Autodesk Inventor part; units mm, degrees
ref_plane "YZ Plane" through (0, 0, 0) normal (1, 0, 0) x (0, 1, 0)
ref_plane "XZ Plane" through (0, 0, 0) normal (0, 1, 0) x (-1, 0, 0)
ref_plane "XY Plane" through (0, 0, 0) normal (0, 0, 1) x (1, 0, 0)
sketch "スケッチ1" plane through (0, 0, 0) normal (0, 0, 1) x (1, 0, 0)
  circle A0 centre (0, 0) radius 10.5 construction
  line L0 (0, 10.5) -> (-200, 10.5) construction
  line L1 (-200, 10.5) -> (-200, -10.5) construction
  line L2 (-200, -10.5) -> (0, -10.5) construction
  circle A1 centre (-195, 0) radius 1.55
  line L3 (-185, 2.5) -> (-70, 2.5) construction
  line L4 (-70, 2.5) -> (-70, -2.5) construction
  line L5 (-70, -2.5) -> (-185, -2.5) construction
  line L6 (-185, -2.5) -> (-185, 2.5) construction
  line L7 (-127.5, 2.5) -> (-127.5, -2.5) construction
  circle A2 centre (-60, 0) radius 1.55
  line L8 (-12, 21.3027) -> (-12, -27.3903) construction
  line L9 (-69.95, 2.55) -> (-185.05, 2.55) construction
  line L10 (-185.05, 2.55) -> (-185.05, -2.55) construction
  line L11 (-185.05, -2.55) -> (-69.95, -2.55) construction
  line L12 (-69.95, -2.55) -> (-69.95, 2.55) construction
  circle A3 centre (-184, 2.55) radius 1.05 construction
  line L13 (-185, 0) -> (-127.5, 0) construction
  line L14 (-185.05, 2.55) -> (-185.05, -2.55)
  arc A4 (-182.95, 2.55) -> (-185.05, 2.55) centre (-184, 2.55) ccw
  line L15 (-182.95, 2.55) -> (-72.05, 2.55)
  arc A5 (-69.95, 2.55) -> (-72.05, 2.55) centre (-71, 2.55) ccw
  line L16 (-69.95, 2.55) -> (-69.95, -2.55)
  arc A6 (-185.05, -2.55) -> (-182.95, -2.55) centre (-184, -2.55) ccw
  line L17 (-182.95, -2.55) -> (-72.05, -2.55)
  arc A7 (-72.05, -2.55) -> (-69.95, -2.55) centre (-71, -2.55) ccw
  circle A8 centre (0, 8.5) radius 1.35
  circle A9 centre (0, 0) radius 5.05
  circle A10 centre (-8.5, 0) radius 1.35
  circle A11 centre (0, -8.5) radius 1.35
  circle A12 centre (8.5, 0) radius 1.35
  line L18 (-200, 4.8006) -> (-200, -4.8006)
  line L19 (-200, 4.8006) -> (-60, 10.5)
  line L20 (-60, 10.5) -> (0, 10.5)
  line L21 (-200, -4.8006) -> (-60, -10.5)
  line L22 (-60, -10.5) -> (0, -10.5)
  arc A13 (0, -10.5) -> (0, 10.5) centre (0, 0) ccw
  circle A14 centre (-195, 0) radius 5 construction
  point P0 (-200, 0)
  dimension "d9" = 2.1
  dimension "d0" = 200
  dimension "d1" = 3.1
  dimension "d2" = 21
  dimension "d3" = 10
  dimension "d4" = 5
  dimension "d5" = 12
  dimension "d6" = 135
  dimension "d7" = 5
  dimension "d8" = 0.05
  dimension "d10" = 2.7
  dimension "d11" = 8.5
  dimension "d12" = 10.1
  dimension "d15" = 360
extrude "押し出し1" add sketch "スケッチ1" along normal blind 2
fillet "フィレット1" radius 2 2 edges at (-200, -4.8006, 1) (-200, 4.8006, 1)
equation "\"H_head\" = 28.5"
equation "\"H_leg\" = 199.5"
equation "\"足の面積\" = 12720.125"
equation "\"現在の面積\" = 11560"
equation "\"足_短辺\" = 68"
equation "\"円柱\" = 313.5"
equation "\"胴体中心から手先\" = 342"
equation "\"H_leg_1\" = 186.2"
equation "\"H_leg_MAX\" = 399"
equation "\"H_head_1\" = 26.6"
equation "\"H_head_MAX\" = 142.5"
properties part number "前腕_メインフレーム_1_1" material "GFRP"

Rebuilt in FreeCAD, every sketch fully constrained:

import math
import FreeCAD as App
import Part
import Sketcher

V = App.Vector
Q = App.Units.Quantity


def edges_at(feature, points):
    """Names of the edges that pass closest to the given points."""
    edges = feature.Shape.Edges
    near = lambda p: min(range(len(edges)), key=lambda i: edges[i].distToShape(Part.Vertex(*p))[0])
    return sorted({f"Edge{near(p) + 1}" for p in points})

doc = App.newDocument("Part")
body = doc.addObject("PartDesign::Body", "Body")

sketch1 = body.newObject("Sketcher::SketchObject", "Sketch")
sketch1.AttachmentSupport = (doc.getObject("XY_Plane"), [""])
sketch1.MapMode = "FlatFace"
sketch1.addGeometry([
    Part.LineSegment(V(-60, 10.5, 0), V(-200, 4.8, 0)),
    Part.LineSegment(V(-200, 4.8, 0), V(-200, -4.8, 0)),
    Part.LineSegment(V(-200, -4.8, 0), V(-60, -10.5, 0)),
    Part.LineSegment(V(-60, -10.5, 0), V(0, -10.5, 0)),
    Part.ArcOfCircle(Part.Circle(V(0, 0, 0), V(0, 0, 1), 10.5), math.radians(-90), math.radians(90)),
    Part.LineSegment(V(0, 10.5, 0), V(-60, 10.5, 0)),
    Part.Circle(V(0, -8.5, 0), V(0, 0, 1), 1.4),
    Part.Circle(V(-195, 0, 0), V(0, 0, 1), 1.6),
    Part.LineSegment(V(-185.1, -2.5, 0), V(-185.1, 2.5, 0)),
    Part.ArcOfCircle(Part.Circle(V(-184, 2.5, 0), V(0, 0, 1), 1.1), math.radians(0), math.radians(180)),
    Part.LineSegment(V(-182.9, 2.5, 0), V(-72, 2.5, 0)),
    Part.ArcOfCircle(Part.Circle(V(-71, 2.5, 0), V(0, 0, 1), 1), math.radians(0), math.radians(180)),
    Part.LineSegment(V(-70, 2.5, 0), V(-70, -2.5, 0)),
    Part.ArcOfCircle(Part.Circle(V(-71, -2.5, 0), V(0, 0, 1), 1), math.radians(180), math.radians(360)),
    Part.LineSegment(V(-72, -2.5, 0), V(-182.9, -2.5, 0)),
    Part.ArcOfCircle(Part.Circle(V(-184, -2.5, 0), V(0, 0, 1), 1.1), math.radians(180), math.radians(360)),
    Part.Circle(V(-60, 0, 0), V(0, 0, 1), 1.6),
    Part.Circle(V(-8.5, 0, 0), V(0, 0, 1), 1.4),
    Part.Circle(V(0, 0, 0), V(0, 0, 1), 5),
    Part.Circle(V(8.5, 0, 0), V(0, 0, 1), 1.4),
    Part.Circle(V(0, 8.5, 0), V(0, 0, 1), 1.4),
], False)
sketch1.addConstraint([
    Sketcher.Constraint("Coincident", 0, 2, 1, 1),
    Sketcher.Constraint("Coincident", 1, 2, 2, 1),
    Sketcher.Constraint("Coincident", 2, 2, 3, 1),
    Sketcher.Constraint("Tangent", 3, 2, 4, 1),
    Sketcher.Constraint("Tangent", 4, 2, 5, 1),
    Sketcher.Constraint("Coincident", 5, 2, 0, 1),
    Sketcher.Constraint("Tangent", 8, 2, 9, 2),
    Sketcher.Constraint("Coincident", 9, 1, 10, 1),
    Sketcher.Constraint("Coincident", 10, 2, 11, 2),
    Sketcher.Constraint("Tangent", 11, 1, 12, 1),
    Sketcher.Constraint("Tangent", 12, 2, 13, 2),
    Sketcher.Constraint("Coincident", 13, 1, 14, 1),
    Sketcher.Constraint("Coincident", 14, 2, 15, 2),
    Sketcher.Constraint("Tangent", 15, 1, 8, 1),
    Sketcher.Constraint("Vertical", 1),
    Sketcher.Constraint("Horizontal", 3),
    Sketcher.Constraint("Horizontal", 5),
    Sketcher.Constraint("Vertical", 8),
    Sketcher.Constraint("Horizontal", 10),
    Sketcher.Constraint("Vertical", 12),
    Sketcher.Constraint("Horizontal", 14),
    Sketcher.Constraint("Coincident", 4, 3, -1, 1),
    Sketcher.Constraint("Coincident", 18, 3, -1, 1),
    Sketcher.Constraint("Equal", 9, 11),
    Sketcher.Constraint("Equal", 11, 13),
    Sketcher.Constraint("Equal", 13, 15),
    Sketcher.Constraint("Equal", 7, 16),
    Sketcher.Constraint("Equal", 6, 17),
    Sketcher.Constraint("Equal", 17, 19),
    Sketcher.Constraint("Equal", 19, 20),
    Sketcher.Constraint("Symmetric", 17, 3, 19, 3, -1, 1),
    Sketcher.Constraint("Symmetric", 6, 3, 20, 3, -1, 1),
    Sketcher.Constraint("PointOnObject", 6, 3, -2),
    Sketcher.Constraint("PointOnObject", 7, 3, -1),
    Sketcher.Constraint("PointOnObject", 16, 3, -1),
    Sketcher.Constraint("PointOnObject", 17, 3, -1),
    Sketcher.Constraint("Horizontal", 9, 3, 11, 3),
    Sketcher.Constraint("Horizontal", 13, 3, 15, 3),
    Sketcher.Constraint("Horizontal", 8, 2, 9, 1),
    Sketcher.Constraint("Horizontal", 12, 2, 13, 1),
    Sketcher.Constraint("Vertical", 16, 3, 2, 2),
    Sketcher.Constraint("Vertical", 2, 2, 5, 2),
    Sketcher.Constraint("Equal", 0, 2),
    Sketcher.Constraint("Diameter", 6, Q("2.7 mm")),
    Sketcher.Constraint("Diameter", 7, Q("3.1 mm")),
    Sketcher.Constraint("Diameter", 18, Q("10.1 mm")),
    Sketcher.Constraint("Radius", 4, Q("10.5 mm")),
    Sketcher.Constraint("Radius", 9, Q("1.05 mm")),
    Sketcher.Constraint("DistanceX", 0, 2, -1, 1, Q("200 mm")),
    Sketcher.Constraint("DistanceX", 0, 2, 7, 3, Q("5 mm")),
    Sketcher.Constraint("DistanceY", 6, 3, -1, 1, Q("8.5 mm")),
    Sketcher.Constraint("DistanceX", 17, 3, -1, 1, Q("8.5 mm")),
    Sketcher.Constraint("DistanceX", 3, 1, 3, 2, Q("60 mm")),
    Sketcher.Constraint("DistanceX", 10, 1, 10, 2, Q("110.9 mm")),
    Sketcher.Constraint("DistanceY", 8, 1, 8, 2, Q("5.1 mm")),
    Sketcher.Constraint("DistanceX", 9, 3, -1, 1, Q("184 mm")),
    Sketcher.Constraint("DistanceY", -1, 1, 9, 3, Q("2.55 mm")),
    Sketcher.Constraint("Distance", 0, Q("140.116 mm")),
])
pad1 = body.newObject("PartDesign::Pad", "Pad")
pad1.Profile = sketch1
pad1.Length = 2
doc.recompute()

fillet = body.newObject("PartDesign::Fillet", "Fillet")
fillet.Base = (pad1, edges_at(pad1, [(-200, -4.801, 1), (-200, 4.801, 1)]))
fillet.Radius = 2

doc.recompute()
